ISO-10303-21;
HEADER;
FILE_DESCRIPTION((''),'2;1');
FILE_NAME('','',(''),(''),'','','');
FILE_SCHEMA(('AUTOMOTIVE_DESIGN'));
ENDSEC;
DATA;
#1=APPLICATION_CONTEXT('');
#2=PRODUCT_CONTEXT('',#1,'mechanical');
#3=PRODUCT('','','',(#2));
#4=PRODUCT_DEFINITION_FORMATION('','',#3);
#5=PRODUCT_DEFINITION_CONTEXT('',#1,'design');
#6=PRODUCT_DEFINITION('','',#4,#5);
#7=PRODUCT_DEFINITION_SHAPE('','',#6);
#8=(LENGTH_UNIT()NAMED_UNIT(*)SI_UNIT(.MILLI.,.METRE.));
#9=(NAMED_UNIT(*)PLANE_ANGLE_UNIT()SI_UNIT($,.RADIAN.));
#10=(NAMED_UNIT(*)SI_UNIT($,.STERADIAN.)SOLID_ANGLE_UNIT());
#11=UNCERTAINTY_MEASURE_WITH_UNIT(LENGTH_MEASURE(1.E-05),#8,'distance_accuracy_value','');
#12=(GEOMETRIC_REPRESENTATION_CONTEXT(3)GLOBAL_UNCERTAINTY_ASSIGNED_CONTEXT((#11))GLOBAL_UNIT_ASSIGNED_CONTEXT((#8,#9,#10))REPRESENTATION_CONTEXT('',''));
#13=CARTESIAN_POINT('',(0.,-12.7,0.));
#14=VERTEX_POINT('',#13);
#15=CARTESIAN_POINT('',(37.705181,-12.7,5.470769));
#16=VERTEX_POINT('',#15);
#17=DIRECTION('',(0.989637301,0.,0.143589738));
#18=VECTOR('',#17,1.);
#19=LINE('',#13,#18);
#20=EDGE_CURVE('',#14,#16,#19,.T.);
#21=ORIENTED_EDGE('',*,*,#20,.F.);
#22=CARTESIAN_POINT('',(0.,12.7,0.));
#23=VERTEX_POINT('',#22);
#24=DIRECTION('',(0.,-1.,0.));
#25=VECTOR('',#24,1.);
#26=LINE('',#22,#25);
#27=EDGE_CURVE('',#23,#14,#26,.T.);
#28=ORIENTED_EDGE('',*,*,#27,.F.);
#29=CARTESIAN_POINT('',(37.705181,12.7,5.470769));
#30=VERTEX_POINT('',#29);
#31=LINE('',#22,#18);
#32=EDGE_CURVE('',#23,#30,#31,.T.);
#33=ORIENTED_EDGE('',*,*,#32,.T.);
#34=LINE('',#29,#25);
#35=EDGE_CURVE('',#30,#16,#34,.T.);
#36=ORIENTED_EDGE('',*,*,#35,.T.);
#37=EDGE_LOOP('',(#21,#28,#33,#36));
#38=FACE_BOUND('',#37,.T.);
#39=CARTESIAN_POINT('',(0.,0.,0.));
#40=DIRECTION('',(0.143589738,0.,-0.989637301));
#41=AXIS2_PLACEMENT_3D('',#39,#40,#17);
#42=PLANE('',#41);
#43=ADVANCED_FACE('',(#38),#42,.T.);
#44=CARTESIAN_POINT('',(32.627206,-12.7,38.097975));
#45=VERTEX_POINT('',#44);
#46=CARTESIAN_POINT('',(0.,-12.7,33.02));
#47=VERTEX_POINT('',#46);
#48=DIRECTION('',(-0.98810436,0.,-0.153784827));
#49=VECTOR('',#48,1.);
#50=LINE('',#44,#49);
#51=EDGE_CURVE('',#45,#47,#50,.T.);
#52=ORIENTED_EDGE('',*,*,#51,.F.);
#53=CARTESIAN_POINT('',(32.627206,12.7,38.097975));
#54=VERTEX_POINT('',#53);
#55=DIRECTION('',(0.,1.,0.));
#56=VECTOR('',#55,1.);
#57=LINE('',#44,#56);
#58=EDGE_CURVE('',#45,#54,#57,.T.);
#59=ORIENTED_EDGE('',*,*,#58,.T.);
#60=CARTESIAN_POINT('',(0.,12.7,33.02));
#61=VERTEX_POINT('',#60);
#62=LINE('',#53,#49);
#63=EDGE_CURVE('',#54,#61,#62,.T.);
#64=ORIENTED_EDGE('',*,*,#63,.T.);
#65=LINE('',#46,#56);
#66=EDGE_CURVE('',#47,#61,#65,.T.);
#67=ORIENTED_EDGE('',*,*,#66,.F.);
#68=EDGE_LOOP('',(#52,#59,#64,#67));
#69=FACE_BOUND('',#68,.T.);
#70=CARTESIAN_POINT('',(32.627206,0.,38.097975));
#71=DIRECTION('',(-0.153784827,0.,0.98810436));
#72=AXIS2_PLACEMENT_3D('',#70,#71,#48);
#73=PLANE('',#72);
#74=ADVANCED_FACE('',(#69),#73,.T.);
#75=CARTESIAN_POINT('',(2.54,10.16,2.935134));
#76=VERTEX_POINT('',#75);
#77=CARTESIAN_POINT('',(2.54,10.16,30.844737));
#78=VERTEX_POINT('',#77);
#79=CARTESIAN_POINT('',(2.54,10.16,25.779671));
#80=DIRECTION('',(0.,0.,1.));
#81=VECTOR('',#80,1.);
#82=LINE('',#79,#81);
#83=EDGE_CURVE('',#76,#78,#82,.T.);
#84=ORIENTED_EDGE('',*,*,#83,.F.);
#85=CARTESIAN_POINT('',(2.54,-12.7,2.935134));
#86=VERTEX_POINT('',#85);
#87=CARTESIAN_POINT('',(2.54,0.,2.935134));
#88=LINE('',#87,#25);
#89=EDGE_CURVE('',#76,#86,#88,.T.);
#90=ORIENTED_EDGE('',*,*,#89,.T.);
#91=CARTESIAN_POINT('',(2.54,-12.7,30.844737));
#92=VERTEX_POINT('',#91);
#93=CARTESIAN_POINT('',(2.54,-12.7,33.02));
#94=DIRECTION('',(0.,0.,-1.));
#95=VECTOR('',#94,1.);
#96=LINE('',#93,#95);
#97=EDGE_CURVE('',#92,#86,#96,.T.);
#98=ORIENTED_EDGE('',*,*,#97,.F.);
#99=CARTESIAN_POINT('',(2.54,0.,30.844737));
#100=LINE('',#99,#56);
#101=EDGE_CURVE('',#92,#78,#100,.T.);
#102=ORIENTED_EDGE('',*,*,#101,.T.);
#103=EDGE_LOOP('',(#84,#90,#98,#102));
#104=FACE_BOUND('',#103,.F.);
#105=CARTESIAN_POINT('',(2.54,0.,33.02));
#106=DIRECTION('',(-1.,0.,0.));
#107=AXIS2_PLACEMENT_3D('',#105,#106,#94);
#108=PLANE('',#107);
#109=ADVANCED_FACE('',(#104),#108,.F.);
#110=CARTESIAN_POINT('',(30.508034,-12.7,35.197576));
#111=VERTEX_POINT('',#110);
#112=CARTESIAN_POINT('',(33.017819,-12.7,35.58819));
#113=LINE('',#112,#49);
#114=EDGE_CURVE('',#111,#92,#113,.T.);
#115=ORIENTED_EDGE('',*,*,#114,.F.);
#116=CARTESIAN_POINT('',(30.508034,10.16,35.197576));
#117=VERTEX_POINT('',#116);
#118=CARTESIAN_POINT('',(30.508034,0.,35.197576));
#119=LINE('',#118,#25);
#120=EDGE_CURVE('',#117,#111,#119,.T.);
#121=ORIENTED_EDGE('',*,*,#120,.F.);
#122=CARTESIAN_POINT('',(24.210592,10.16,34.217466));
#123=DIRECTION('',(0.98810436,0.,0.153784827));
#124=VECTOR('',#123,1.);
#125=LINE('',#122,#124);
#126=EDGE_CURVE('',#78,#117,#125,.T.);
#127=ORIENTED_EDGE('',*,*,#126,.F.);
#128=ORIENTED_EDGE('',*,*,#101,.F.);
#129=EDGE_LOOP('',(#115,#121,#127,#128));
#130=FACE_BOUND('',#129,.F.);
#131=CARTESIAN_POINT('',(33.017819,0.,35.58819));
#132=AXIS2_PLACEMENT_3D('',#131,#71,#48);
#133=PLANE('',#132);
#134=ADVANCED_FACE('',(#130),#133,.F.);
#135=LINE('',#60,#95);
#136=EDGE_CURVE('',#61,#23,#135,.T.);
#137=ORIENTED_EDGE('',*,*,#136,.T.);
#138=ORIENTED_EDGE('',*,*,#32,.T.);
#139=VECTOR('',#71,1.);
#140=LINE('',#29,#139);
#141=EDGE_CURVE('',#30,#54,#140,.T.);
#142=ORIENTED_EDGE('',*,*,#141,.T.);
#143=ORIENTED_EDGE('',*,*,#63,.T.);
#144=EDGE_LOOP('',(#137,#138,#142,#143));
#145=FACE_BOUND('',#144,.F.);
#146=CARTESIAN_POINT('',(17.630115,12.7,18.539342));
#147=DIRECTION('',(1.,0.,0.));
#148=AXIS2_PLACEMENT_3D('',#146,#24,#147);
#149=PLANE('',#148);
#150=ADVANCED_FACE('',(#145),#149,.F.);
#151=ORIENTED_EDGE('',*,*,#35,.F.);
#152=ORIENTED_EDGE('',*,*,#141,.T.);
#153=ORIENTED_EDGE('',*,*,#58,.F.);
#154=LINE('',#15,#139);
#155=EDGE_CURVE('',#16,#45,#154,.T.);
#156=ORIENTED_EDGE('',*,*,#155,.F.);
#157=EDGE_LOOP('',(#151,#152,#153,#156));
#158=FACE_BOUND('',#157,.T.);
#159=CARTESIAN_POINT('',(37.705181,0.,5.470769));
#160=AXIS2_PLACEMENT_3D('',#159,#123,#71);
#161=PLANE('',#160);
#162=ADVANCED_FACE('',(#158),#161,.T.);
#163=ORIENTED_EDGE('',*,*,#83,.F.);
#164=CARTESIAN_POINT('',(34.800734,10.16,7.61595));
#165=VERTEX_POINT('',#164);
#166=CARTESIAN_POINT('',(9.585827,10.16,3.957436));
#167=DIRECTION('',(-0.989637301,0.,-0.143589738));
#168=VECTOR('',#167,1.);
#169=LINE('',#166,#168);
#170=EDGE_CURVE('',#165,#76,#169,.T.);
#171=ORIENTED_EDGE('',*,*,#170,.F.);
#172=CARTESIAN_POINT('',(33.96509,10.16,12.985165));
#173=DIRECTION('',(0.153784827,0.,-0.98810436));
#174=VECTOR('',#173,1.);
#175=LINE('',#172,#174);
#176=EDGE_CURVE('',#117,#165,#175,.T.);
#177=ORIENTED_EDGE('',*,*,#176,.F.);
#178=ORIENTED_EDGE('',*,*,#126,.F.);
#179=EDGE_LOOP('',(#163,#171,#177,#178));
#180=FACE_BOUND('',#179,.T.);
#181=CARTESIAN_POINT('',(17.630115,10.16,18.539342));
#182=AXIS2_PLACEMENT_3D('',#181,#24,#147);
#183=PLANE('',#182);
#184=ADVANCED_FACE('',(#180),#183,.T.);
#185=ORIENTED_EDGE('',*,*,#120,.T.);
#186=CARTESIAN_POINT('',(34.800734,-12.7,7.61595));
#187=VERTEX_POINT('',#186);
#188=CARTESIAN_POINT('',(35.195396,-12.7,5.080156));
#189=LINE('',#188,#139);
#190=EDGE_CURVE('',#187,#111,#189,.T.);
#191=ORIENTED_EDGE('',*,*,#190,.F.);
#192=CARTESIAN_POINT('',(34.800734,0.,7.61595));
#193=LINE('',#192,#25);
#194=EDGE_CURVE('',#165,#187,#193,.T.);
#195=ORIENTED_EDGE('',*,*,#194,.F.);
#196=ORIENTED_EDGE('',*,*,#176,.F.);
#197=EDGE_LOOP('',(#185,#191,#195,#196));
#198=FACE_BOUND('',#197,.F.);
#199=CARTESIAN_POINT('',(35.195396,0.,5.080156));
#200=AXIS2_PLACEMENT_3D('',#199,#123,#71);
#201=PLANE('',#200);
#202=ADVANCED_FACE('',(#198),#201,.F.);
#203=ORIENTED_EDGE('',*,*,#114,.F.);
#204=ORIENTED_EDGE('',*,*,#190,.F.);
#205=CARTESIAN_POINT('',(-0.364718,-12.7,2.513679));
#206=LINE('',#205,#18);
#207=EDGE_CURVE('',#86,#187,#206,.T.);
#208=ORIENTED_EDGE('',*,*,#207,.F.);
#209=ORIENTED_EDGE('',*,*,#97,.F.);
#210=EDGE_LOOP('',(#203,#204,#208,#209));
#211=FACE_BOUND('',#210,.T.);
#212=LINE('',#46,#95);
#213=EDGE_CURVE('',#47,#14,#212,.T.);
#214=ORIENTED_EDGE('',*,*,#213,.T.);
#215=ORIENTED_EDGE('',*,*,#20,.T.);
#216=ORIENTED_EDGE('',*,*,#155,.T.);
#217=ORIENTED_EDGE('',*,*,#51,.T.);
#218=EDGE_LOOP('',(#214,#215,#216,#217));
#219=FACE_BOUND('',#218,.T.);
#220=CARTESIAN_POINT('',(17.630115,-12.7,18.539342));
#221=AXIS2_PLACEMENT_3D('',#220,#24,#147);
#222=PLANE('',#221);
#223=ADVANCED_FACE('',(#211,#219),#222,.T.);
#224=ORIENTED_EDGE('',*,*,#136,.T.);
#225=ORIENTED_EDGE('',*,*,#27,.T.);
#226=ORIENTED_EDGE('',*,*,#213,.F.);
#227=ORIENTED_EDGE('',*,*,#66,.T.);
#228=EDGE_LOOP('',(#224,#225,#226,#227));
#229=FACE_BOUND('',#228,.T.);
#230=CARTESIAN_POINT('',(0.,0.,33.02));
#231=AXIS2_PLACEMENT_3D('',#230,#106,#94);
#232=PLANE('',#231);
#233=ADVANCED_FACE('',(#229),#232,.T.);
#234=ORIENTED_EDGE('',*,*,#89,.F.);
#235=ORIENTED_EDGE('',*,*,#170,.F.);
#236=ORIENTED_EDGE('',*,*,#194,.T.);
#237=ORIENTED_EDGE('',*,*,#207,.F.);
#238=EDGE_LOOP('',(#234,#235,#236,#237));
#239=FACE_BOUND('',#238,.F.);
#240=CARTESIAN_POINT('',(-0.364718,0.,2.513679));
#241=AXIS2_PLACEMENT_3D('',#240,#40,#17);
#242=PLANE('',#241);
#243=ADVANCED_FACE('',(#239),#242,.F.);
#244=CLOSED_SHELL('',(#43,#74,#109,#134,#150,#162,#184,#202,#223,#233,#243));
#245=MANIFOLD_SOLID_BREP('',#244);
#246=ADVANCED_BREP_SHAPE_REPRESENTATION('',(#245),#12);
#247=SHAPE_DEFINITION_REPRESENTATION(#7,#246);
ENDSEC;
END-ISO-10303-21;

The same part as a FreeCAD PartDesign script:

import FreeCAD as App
import Part
import Sketcher

V = App.Vector
Q = App.Units.Quantity


def faces_at(feature, points):
    """Names of the faces that lie closest to the given points."""
    faces = feature.Shape.Faces
    near = lambda p: min(range(len(faces)), key=lambda i: faces[i].distToShape(Part.Vertex(*p))[0])
    return sorted({f"Face{near(p) + 1}" for p in points})

doc = App.newDocument("Part")
body = doc.addObject("PartDesign::Body", "Body")

sketch1 = doc.addObject("Sketcher::SketchObject", "Sketch")
body.addObject(sketch1)
sketch1.AttachmentSupport = (doc.XZ_Plane, [""])
sketch1.MapMode = "FlatFace"
sketch1.addGeometry(Part.LineSegment(V(0, 33.02, 0), V(0, 0, 0)), False)
sketch1.addGeometry(Part.LineSegment(V(0, 0, 0), V(37.705181, 5.470769, 0)), False)
sketch1.addGeometry(Part.LineSegment(V(37.705181, 5.470769, 0), V(32.627206, 38.097975, 0)), False)
sketch1.addGeometry(Part.LineSegment(V(32.627206, 38.097975, 0), V(0, 33.02, 0)), False)
sketch1.addConstraint(Sketcher.Constraint("Coincident", 0, 2, 1, 1))
sketch1.addConstraint(Sketcher.Constraint("Coincident", 1, 2, 2, 1))
sketch1.addConstraint(Sketcher.Constraint("Coincident", 2, 2, 3, 1))
sketch1.addConstraint(Sketcher.Constraint("Coincident", 3, 2, 0, 1))
sketch1.addConstraint(Sketcher.Constraint("Vertical", 0))
sketch1.addConstraint(Sketcher.Constraint("Coincident", 0, 2, -1, 1))
sketch1.addConstraint(Sketcher.Constraint("Perpendicular", 2, 3))
sketch1.addConstraint(Sketcher.Constraint("Equal", 2, 3))
sketch1.addConstraint(Sketcher.Constraint("DistanceY", 0, 2, 0, 1, Q("1.3 in")))
sketch1.addConstraint(Sketcher.Constraint("Distance", 1, Q("1.5 in")))
sketch1.addConstraint(Sketcher.Constraint("Distance", 2, Q("1.3 in")))
pad1 = doc.addObject("PartDesign::Pad", "Pad")
body.addObject(pad1)
pad1.Profile = sketch1
pad1.Length = Q("1 in")
pad1.Midplane = True
doc.recompute()

thickness = doc.addObject("PartDesign::Thickness", "Thickness")
body.addObject(thickness)
thickness.Base = (pad1, faces_at(pad1, [(18.853, -12.7, 19.049)]))
thickness.Value = Q("0.1 in")
thickness.Reversed = True
thickness.Join = "Arc"

doc.recompute()
